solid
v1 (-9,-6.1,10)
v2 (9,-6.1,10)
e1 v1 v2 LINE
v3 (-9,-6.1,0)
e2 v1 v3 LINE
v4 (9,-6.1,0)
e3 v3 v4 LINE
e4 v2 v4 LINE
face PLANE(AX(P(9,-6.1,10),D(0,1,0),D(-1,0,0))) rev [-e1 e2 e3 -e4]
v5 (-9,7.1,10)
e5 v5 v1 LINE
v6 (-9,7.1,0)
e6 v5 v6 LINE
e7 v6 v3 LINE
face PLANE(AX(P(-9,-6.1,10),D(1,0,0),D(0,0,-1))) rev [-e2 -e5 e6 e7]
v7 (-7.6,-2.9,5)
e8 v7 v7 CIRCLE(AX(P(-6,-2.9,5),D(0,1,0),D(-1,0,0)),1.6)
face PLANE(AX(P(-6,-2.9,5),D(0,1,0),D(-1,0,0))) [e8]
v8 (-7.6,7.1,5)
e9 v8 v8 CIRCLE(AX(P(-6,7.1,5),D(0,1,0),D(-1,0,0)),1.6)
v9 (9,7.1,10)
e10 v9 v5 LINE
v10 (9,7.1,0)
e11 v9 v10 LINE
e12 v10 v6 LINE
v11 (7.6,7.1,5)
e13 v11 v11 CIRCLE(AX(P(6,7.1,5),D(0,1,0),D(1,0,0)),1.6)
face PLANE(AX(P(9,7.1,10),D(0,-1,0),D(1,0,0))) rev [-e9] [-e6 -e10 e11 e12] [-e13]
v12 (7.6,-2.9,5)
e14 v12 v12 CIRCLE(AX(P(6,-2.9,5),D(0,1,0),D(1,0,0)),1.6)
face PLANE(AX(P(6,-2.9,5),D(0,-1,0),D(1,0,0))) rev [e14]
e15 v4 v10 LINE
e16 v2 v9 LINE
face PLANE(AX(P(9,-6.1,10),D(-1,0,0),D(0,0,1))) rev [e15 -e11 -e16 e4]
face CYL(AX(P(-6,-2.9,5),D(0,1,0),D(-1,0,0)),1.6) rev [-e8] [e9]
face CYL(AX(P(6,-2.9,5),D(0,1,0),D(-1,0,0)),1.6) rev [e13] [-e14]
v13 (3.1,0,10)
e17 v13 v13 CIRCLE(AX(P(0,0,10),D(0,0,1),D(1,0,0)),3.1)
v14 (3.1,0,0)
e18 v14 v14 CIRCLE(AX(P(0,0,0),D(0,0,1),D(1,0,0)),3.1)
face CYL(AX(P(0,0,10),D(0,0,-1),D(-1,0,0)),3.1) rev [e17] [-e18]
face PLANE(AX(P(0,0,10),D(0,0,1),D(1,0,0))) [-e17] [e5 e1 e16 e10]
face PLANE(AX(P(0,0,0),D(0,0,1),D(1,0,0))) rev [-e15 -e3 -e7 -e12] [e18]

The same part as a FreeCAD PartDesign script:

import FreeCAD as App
import Part
import Sketcher

V = App.Vector
Q = App.Units.Quantity

doc = App.newDocument("Part")
body = doc.addObject("PartDesign::Body", "Body")

# Sketch on XY plane
sketch1 = body.newObject("Sketcher::SketchObject", "Sketch")
sketch1.AttachmentSupport = (doc.getObject("XY_Plane"), [""])
sketch1.MapMode = "FlatFace"
sketch1.addGeometry([
    Part.LineSegment(V(-9, 7.1, 0), V(-9, -6.1, 0)),  # 0
    Part.LineSegment(V(-9, -6.1, 0), V(9, -6.1, 0)),  # 1
    Part.LineSegment(V(9, -6.1, 0), V(9, 7.1, 0)),  # 2
    Part.LineSegment(V(9, 7.1, 0), V(-9, 7.1, 0)),  # 3
    Part.Circle(V(0, 0, 0), V(0, 0, 1), 3.1),  # 4
], False)
sketch1.addConstraint([
    Sketcher.Constraint("Coincident", 0, 2, 1, 1),
    Sketcher.Constraint("Coincident", 1, 2, 2, 1),
    Sketcher.Constraint("Coincident", 2, 2, 3, 1),
    Sketcher.Constraint("Coincident", 3, 2, 0, 1),
    Sketcher.Constraint("Vertical", 0),
    Sketcher.Constraint("Horizontal", 1),
    Sketcher.Constraint("Vertical", 2),
    Sketcher.Constraint("Horizontal", 3),
    Sketcher.Constraint("Coincident", 4, 3, -1, 1),
    Sketcher.Constraint("Diameter", 4, Q("6.2 mm")),
    Sketcher.Constraint("DistanceX", 1, 1, 1, 2, Q("18 mm")),
    Sketcher.Constraint("DistanceY", 0, 2, 0, 1, Q("13.2 mm")),
    Sketcher.Constraint("DistanceX", 0, 2, -1, 1, Q("9 mm")),
    Sketcher.Constraint("DistanceY", 0, 2, -1, 1, Q("6.1 mm")),
])
pad1 = body.newObject("PartDesign::Pad", "Pad")
pad1.Profile = sketch1
pad1.Length = 10

# Sketch on XZ plane
sketch2 = body.newObject("Sketcher::SketchObject", "Sketch001")
sketch2.AttachmentSupport = (doc.getObject("XZ_Plane"), [""])
sketch2.MapMode = "FlatFace"
sketch2.AttachmentOffset = App.Placement(V(0, 0, -7.1), App.Rotation())
sketch2.addGeometry([
    Part.Circle(V(-6, 5, 0), V(0, 0, 1), 1.6),
    Part.Circle(V(6, 5, 0), V(0, 0, 1), 1.6),
], False)
sketch2.addConstraint([
    Sketcher.Constraint("Equal", 0, 1),
    Sketcher.Constraint("Symmetric", 0, 3, 1, 3, -2),
    Sketcher.Constraint("Diameter", 0, Q("3.2 mm")),
    Sketcher.Constraint("DistanceX", 0, 3, -1, 1, Q("6 mm")),
    Sketcher.Constraint("DistanceY", -1, 1, 0, 3, Q("5 mm")),
])
pocket1 = body.newObject("PartDesign::Pocket", "Pocket")
pocket1.Profile = sketch2
pocket1.Length = 10
pocket1.Reversed = True

doc.recompute()
